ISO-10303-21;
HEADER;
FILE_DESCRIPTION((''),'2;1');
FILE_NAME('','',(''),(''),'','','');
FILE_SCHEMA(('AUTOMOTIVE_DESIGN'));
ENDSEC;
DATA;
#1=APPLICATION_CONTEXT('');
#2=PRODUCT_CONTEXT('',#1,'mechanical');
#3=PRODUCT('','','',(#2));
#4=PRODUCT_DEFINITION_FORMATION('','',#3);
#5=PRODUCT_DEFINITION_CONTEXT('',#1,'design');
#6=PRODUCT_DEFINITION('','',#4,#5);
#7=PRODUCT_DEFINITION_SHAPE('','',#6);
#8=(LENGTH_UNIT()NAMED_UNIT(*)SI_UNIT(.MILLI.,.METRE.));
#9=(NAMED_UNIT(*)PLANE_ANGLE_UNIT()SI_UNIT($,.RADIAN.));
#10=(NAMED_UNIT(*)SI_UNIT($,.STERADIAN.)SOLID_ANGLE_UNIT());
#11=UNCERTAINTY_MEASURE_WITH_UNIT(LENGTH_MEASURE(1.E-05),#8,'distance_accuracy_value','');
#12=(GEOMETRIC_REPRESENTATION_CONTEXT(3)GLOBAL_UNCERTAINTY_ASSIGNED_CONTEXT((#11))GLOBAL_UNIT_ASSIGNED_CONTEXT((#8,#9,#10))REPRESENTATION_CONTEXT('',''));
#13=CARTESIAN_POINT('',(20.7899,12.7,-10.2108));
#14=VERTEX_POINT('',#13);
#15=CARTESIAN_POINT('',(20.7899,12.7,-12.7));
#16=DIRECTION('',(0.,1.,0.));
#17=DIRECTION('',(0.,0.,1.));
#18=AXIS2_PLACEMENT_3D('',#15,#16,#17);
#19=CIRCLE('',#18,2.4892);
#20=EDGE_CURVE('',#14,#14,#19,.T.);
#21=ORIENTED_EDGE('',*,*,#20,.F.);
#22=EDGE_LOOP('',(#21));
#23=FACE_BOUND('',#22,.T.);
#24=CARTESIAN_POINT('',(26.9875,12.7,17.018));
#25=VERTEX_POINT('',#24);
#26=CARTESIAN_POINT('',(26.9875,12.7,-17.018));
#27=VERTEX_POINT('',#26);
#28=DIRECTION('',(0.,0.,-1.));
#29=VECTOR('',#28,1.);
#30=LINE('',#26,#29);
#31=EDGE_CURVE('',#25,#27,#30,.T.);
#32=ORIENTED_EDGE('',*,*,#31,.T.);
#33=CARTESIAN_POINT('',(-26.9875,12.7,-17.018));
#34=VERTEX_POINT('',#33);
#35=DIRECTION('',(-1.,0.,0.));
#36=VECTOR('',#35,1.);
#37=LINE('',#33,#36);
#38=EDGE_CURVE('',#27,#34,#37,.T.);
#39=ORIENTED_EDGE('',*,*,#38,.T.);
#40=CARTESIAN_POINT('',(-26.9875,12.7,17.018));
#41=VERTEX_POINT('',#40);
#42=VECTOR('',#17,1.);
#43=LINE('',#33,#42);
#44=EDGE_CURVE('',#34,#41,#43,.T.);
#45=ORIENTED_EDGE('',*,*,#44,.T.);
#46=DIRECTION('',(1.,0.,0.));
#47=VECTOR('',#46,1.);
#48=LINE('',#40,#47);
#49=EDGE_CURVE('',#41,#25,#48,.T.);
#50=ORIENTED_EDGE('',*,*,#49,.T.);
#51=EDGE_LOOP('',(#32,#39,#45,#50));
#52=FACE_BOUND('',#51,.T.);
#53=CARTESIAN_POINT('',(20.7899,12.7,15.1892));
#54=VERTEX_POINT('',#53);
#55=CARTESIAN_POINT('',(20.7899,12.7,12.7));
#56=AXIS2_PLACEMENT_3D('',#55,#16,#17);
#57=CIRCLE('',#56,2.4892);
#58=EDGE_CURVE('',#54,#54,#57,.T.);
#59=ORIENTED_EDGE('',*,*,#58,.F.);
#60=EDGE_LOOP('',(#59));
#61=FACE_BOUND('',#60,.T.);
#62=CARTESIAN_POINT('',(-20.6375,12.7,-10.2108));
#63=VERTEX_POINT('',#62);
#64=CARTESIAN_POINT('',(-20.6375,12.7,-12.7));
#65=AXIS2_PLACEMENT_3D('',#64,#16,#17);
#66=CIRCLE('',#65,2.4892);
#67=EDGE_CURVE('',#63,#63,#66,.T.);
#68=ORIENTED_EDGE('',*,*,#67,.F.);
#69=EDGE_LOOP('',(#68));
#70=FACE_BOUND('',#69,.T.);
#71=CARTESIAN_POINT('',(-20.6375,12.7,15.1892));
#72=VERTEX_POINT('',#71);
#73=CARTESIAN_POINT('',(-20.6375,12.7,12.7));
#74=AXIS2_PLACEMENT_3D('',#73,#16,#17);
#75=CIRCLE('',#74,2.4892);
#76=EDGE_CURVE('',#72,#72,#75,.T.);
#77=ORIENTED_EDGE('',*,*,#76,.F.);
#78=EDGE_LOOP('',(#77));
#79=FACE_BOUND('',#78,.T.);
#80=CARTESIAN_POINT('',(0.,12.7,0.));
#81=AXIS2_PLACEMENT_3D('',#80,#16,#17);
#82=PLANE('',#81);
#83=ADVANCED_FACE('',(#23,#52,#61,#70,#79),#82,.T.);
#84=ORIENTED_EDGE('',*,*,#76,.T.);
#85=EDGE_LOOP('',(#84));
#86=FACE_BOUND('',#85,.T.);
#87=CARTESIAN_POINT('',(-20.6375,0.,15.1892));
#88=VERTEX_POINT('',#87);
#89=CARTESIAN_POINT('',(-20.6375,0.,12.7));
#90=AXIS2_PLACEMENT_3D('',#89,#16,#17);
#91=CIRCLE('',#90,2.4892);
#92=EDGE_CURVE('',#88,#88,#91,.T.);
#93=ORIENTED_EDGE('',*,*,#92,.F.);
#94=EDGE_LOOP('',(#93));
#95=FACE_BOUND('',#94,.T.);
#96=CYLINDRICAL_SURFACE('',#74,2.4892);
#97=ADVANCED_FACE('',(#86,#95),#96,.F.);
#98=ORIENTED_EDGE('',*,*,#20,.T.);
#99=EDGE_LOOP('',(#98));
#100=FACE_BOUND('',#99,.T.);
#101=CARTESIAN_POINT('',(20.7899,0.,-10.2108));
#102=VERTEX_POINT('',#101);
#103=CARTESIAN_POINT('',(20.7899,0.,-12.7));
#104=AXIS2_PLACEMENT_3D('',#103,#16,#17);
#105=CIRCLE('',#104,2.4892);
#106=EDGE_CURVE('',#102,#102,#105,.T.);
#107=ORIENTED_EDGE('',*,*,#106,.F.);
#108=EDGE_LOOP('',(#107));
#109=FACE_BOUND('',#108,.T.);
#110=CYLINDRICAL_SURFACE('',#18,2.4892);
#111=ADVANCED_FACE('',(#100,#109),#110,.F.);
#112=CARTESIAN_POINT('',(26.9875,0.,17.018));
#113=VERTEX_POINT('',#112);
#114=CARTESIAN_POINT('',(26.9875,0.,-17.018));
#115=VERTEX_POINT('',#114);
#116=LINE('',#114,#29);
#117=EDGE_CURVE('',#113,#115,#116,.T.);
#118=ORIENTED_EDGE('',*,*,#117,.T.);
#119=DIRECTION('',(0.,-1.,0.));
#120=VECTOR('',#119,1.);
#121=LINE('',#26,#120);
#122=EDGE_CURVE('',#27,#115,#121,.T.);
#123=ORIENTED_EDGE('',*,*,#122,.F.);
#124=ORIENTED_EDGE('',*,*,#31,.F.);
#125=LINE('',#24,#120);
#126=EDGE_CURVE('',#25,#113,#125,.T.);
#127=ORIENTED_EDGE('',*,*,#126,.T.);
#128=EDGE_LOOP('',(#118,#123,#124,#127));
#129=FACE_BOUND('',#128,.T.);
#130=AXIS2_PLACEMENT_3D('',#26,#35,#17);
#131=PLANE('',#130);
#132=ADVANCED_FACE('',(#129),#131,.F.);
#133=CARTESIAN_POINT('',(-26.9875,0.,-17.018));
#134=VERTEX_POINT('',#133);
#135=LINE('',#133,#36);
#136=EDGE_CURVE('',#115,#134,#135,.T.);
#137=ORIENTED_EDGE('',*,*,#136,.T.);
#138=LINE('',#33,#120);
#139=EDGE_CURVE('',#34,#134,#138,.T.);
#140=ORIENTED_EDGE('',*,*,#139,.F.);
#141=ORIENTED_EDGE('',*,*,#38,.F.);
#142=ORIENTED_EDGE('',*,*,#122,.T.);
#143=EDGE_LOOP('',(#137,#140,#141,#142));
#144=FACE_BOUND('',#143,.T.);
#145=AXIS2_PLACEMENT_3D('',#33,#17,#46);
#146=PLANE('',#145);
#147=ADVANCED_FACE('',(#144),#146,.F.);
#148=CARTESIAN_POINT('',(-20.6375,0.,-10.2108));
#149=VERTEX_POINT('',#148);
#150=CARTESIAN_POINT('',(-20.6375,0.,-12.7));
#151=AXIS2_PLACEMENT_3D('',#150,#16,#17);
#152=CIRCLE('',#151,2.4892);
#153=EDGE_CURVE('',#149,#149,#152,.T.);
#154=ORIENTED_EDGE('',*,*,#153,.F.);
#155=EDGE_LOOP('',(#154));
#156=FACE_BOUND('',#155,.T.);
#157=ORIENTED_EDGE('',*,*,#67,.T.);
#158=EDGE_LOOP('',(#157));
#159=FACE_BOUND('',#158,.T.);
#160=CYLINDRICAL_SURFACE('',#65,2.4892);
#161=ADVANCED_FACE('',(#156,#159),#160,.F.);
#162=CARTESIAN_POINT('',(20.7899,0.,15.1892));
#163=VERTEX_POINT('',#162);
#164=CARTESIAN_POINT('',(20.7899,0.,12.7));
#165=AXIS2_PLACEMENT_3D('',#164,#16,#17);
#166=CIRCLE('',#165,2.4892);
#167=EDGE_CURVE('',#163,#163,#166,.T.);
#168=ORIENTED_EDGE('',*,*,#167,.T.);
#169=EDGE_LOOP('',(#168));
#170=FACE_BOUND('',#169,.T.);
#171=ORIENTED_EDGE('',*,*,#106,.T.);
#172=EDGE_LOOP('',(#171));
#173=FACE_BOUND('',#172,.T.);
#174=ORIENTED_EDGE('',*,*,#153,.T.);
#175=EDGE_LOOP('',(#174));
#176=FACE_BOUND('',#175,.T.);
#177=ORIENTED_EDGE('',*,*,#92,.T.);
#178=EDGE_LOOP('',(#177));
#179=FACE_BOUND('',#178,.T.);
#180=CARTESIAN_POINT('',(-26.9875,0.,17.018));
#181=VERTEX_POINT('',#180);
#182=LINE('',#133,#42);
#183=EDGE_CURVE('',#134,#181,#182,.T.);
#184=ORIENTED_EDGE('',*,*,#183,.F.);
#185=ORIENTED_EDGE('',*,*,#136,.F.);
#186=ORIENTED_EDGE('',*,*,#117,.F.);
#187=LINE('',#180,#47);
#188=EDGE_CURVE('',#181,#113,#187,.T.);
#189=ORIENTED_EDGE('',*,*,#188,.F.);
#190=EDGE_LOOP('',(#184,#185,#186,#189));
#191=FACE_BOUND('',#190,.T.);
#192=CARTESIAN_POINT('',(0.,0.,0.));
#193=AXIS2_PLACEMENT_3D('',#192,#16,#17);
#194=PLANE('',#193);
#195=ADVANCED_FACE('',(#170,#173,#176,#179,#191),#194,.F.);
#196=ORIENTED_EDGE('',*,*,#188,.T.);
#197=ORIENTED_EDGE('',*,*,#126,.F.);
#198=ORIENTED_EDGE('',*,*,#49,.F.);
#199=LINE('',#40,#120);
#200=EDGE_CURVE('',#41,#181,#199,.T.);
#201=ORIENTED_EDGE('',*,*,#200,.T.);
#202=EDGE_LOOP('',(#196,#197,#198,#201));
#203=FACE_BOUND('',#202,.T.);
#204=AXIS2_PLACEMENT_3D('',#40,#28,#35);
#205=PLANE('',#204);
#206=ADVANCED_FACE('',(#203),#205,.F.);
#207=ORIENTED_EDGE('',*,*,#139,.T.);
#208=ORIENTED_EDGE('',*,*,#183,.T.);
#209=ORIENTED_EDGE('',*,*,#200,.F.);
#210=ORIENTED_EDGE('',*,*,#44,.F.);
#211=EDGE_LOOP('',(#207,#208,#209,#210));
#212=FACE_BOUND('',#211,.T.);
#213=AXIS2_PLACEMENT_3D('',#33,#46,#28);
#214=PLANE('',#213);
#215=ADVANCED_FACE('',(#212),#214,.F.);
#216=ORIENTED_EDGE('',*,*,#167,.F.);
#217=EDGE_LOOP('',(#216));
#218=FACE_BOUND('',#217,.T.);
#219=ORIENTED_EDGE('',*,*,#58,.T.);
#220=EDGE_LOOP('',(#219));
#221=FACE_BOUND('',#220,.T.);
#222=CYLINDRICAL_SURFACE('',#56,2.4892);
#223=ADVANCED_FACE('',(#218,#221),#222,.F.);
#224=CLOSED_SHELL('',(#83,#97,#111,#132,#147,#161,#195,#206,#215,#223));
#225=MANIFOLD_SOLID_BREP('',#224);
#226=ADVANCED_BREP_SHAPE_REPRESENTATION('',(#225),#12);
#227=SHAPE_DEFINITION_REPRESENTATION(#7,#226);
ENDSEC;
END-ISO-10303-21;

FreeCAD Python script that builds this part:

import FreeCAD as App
import Part
import Sketcher

V = App.Vector
Q = App.Units.Quantity

doc = App.newDocument("Part")
body = doc.addObject("PartDesign::Body", "Body")

# Sketch on XZ plane
sketch1 = doc.addObject("Sketcher::SketchObject", "Sketch")
body.addObject(sketch1)
sketch1.AttachmentSupport = (doc.XZ_Plane, [""])
sketch1.MapMode = "FlatFace"
sketch1.addGeometry([
    Part.LineSegment(V(-27, -17, 0), V(-27, 17, 0)),
    Part.LineSegment(V(-27, 17, 0), V(27, 17, 0)),
    Part.LineSegment(V(27, 17, 0), V(27, -17, 0)),
    Part.LineSegment(V(27, -17, 0), V(-27, -17, 0)),
], False)
sketch1.addConstraint([
    Sketcher.Constraint("Coincident", 0, 2, 1, 1),
    Sketcher.Constraint("Coincident", 1, 2, 2, 1),
    Sketcher.Constraint("Coincident", 2, 2, 3, 1),
    Sketcher.Constraint("Coincident", 3, 2, 0, 1),
    Sketcher.Constraint("Vertical", 0),
    Sketcher.Constraint("Horizontal", 1),
    Sketcher.Constraint("Vertical", 2),
    Sketcher.Constraint("Horizontal", 3),
    Sketcher.Constraint("Symmetric", 0, 2, 2, 2, -1, 1),
    Sketcher.Constraint("DistanceY", 0, 1, 0, 2, Q("1.34 in")),
    Sketcher.Constraint("DistanceX", 1, 1, 1, 2, Q("2.125 in")),
])
pad1 = doc.addObject("PartDesign::Pad", "Pad")
body.addObject(pad1)
pad1.Profile = sketch1
pad1.Length = Q("0.5 in")
pad1.Reversed = True

# Sketch on XZ plane
sketch2 = doc.addObject("Sketcher::SketchObject", "Sketch001")
body.addObject(sketch2)
sketch2.AttachmentSupport = (doc.XZ_Plane, [""])
sketch2.MapMode = "FlatFace"
sketch2.AttachmentOffset = App.Placement(V(0, 0, -0.5 * 25.4), App.Rotation())
sketch2.addGeometry([
    Part.Circle(V(-20.6, -12.7, 0), V(0, 0, 1), 2.5),
    Part.Circle(V(-20.6, 12.7, 0), V(0, 0, 1), 2.5),
    Part.Circle(V(20.8, 12.7, 0), V(0, 0, 1), 2.5),
    Part.Circle(V(20.8, -12.7, 0), V(0, 0, 1), 2.5),
], False)
sketch2.addConstraint([
    Sketcher.Constraint("Equal", 0, 1),
    Sketcher.Constraint("Equal", 1, 2),
    Sketcher.Constraint("Equal", 2, 3),
    Sketcher.Constraint("Symmetric", 0, 3, 1, 3, -1),
    Sketcher.Constraint("Symmetric", 2, 3, 3, 3, -1),
    Sketcher.Constraint("Horizontal", 1, 3, 2, 3),
    Sketcher.Constraint("Diameter", 0, Q("0.196 in")),
    Sketcher.Constraint("DistanceY", 0, 3, 1, 3, Q("1 in")),
    Sketcher.Constraint("DistanceX", 0, 3, -1, 1, Q("0.8125 in")),
    Sketcher.Constraint("DistanceX", 1, 3, 2, 3, Q("1.631 in")),
])
doc.recompute()
hole = doc.addObject("PartDesign::Hole", "Hole")
body.addObject(hole)
hole.Profile = sketch2
hole.ThreadType = "None"
hole.Diameter = Q("0.196 in")
hole.DepthType = "ThroughAll"
hole.Reversed = True

doc.recompute()
